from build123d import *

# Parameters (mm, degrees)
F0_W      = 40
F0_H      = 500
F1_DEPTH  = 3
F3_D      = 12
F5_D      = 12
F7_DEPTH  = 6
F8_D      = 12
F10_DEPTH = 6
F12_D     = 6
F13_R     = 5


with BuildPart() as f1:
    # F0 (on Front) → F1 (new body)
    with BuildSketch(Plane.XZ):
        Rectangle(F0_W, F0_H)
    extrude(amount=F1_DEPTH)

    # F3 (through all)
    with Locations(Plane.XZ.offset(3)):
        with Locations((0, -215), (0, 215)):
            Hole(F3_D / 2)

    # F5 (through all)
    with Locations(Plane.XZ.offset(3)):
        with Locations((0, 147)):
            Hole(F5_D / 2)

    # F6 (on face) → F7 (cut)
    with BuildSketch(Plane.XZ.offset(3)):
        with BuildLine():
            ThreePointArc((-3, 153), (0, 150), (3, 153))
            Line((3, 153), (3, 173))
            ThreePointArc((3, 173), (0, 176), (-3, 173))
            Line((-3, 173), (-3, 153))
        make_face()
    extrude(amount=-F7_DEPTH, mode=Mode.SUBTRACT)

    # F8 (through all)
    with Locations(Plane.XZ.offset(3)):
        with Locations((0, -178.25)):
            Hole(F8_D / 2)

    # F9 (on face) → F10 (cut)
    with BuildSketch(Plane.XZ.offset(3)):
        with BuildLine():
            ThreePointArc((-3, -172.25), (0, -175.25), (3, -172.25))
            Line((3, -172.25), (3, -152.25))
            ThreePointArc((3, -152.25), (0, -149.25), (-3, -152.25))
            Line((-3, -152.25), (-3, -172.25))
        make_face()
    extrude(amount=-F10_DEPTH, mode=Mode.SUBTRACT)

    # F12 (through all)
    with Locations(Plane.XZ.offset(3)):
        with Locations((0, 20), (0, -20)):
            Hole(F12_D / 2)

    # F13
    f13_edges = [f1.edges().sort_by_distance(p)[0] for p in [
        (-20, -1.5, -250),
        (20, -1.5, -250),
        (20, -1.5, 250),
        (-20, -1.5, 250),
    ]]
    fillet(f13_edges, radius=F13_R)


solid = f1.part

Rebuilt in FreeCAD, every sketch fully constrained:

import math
import FreeCAD as App
import Part
import Sketcher
from FreeCAD import Vector
Q = App.Units.Quantity


def edges_at(feature, points):
    """Names of the edges that pass closest to the given points."""
    edges = feature.Shape.Edges
    near = lambda p: min(range(len(edges)), key=lambda i: edges[i].distToShape(Part.Vertex(*p))[0])
    return sorted({f"Edge{near(p) + 1}" for p in points})


def add_polygon(sketch, points):
    """Adds a closed chain of lines whose ends are joined by coincident constraints."""
    first, n = sketch.GeometryCount, len(points)
    for a, b in zip(points, points[1:] + points[:1]):
        sketch.addGeometry(Part.LineSegment(App.Vector(*a, 0), App.Vector(*b, 0)), False)
    for i in range(n):
        sketch.addConstraint(Sketcher.Constraint("Coincident", first + i, 2, first + (i + 1) % n, 1))

doc = App.newDocument("Part")
body = doc.addObject("PartDesign::Body", "Body")

sketch1 = body.newObject("Sketcher::SketchObject", "Sketch")
sketch1.AttachmentSupport = (doc.getObject("XZ_Plane"), [""])
sketch1.MapMode = "FlatFace"
add_polygon(sketch1, [(-20, 250), (-20, -250), (20, -250), (20, 250)])
sketch1.addConstraint(Sketcher.Constraint("Vertical", 0))
sketch1.addConstraint(Sketcher.Constraint("Horizontal", 1))
sketch1.addConstraint(Sketcher.Constraint("Vertical", 2))
sketch1.addConstraint(Sketcher.Constraint("Horizontal", 3))
sketch1.addConstraint(Sketcher.Constraint("Symmetric", 0, 2, 2, 2, -1, 1))
sketch1.addConstraint(Sketcher.Constraint("DistanceX", 1, 1, 1, 2, Q("40 mm")))
sketch1.addConstraint(Sketcher.Constraint("DistanceY", 0, 2, 0, 1, Q("500 mm")))
pad1 = body.newObject("PartDesign::Pad", "Pad")
pad1.Profile = sketch1
pad1.Length = 3

sketch2 = body.newObject("Sketcher::SketchObject", "Sketch001")
sketch2.AttachmentSupport = (doc.getObject("XZ_Plane"), [""])
sketch2.MapMode = "FlatFace"
sketch2.AttachmentOffset = App.Placement(Vector(0, 0, 3), App.Rotation())
sketch2.addGeometry(Part.Circle(Vector(0, -215, 0), Vector(0, 0, 1), 6), False)
sketch2.addGeometry(Part.Circle(Vector(0, 215, 0), Vector(0, 0, 1), 6), False)
sketch2.addConstraint(Sketcher.Constraint("Equal", 0, 1))
sketch2.addConstraint(Sketcher.Constraint("Symmetric", 0, 3, 1, 3, -1, 1))
sketch2.addConstraint(Sketcher.Constraint("PointOnObject", 0, 3, -2))
sketch2.addConstraint(Sketcher.Constraint("Diameter", 0, Q("12 mm")))
sketch2.addConstraint(Sketcher.Constraint("DistanceY", 0, 3, -1, 1, Q("215 mm")))
doc.recompute()
hole = body.newObject("PartDesign::Hole", "Hole")
hole.Profile = sketch2
hole.ThreadType = "None"
hole.Diameter = 12
hole.DepthType = "ThroughAll"

sketch3 = body.newObject("Sketcher::SketchObject", "Sketch002")
sketch3.AttachmentSupport = (doc.getObject("XZ_Plane"), [""])
sketch3.MapMode = "FlatFace"
sketch3.AttachmentOffset = App.Placement(Vector(0, 0, 3), App.Rotation())
sketch3.addGeometry(Part.Circle(Vector(0, 147, 0), Vector(0, 0, 1), 6), False)
sketch3.addConstraint(Sketcher.Constraint("PointOnObject", 0, 3, -2))
sketch3.addConstraint(Sketcher.Constraint("Diameter", 0, Q("12 mm")))
sketch3.addConstraint(Sketcher.Constraint("DistanceY", -1, 1, 0, 3, Q("147 mm")))
doc.recompute()
hole2 = body.newObject("PartDesign::Hole", "Hole001")
hole2.Profile = sketch3
hole2.ThreadType = "None"
hole2.Diameter = 12
hole2.DepthType = "ThroughAll"

sketch4 = body.newObject("Sketcher::SketchObject", "Sketch003")
sketch4.AttachmentSupport = (doc.getObject("XZ_Plane"), [""])
sketch4.MapMode = "FlatFace"
sketch4.AttachmentOffset = App.Placement(Vector(0, 0, 3), App.Rotation())
sketch4.addGeometry(Part.ArcOfCircle(Part.Circle(Vector(0, 153, 0), Vector(0, 0, 1), 3), math.radians(180), math.radians(360)), False)
sketch4.addGeometry(Part.LineSegment(Vector(3, 153, 0), Vector(3, 173, 0)), False)
sketch4.addGeometry(Part.ArcOfCircle(Part.Circle(Vector(0, 173, 0), Vector(0, 0, 1), 3), math.radians(0), math.radians(180)), False)
sketch4.addGeometry(Part.LineSegment(Vector(-3, 173, 0), Vector(-3, 153, 0)), False)
sketch4.addConstraint(Sketcher.Constraint("Tangent", 0, 2, 1, 1))
sketch4.addConstraint(Sketcher.Constraint("Tangent", 1, 2, 2, 1))
sketch4.addConstraint(Sketcher.Constraint("Tangent", 2, 2, 3, 1))
sketch4.addConstraint(Sketcher.Constraint("Tangent", 3, 2, 0, 1))
sketch4.addConstraint(Sketcher.Constraint("Vertical", 1))
sketch4.addConstraint(Sketcher.Constraint("Vertical", 3))
sketch4.addConstraint(Sketcher.Constraint("PointOnObject", 0, 3, -2))
sketch4.addConstraint(Sketcher.Constraint("Radius", 0, Q("3 mm")))
sketch4.addConstraint(Sketcher.Constraint("DistanceY", 1, 1, 1, 2, Q("20 mm")))
sketch4.addConstraint(Sketcher.Constraint("DistanceY", -1, 1, 0, 3, Q("153 mm")))
pocket1 = body.newObject("PartDesign::Pocket", "Pocket")
pocket1.Profile = sketch4
pocket1.Length = 6

sketch5 = body.newObject("Sketcher::SketchObject", "Sketch004")
sketch5.AttachmentSupport = (doc.getObject("XZ_Plane"), [""])
sketch5.MapMode = "FlatFace"
sketch5.AttachmentOffset = App.Placement(Vector(0, 0, 3), App.Rotation())
sketch5.addGeometry(Part.Circle(Vector(0, -178, 0), Vector(0, 0, 1), 6), False)
sketch5.addConstraint(Sketcher.Constraint("PointOnObject", 0, 3, -2))
sketch5.addConstraint(Sketcher.Constraint("Diameter", 0, Q("12 mm")))
sketch5.addConstraint(Sketcher.Constraint("DistanceY", 0, 3, -1, 1, Q("178.25 mm")))
doc.recompute()
hole3 = body.newObject("PartDesign::Hole", "Hole002")
hole3.Profile = sketch5
hole3.ThreadType = "None"
hole3.Diameter = 12
hole3.DepthType = "ThroughAll"

sketch6 = body.newObject("Sketcher::SketchObject", "Sketch005")
sketch6.AttachmentSupport = (doc.getObject("XZ_Plane"), [""])
sketch6.MapMode = "FlatFace"
sketch6.AttachmentOffset = App.Placement(Vector(0, 0, 3), App.Rotation())
sketch6.addGeometry(Part.ArcOfCircle(Part.Circle(Vector(0, -172.2, 0), Vector(0, 0, 1), 3), math.radians(180), math.radians(360)), False)
sketch6.addGeometry(Part.LineSegment(Vector(3, -172.2, 0), Vector(3, -152.2, 0)), False)
sketch6.addGeometry(Part.ArcOfCircle(Part.Circle(Vector(0, -152.2, 0), Vector(0, 0, 1), 3), math.radians(0), math.radians(180)), False)
sketch6.addGeometry(Part.LineSegment(Vector(-3, -152.2, 0), Vector(-3, -172.2, 0)), False)
sketch6.addConstraint(Sketcher.Constraint("Tangent", 0, 2, 1, 1))
sketch6.addConstraint(Sketcher.Constraint("Tangent", 1, 2, 2, 1))
sketch6.addConstraint(Sketcher.Constraint("Tangent", 2, 2, 3, 1))
sketch6.addConstraint(Sketcher.Constraint("Tangent", 3, 2, 0, 1))
sketch6.addConstraint(Sketcher.Constraint("Vertical", 1))
sketch6.addConstraint(Sketcher.Constraint("Vertical", 3))
sketch6.addConstraint(Sketcher.Constraint("PointOnObject", 0, 3, -2))
sketch6.addConstraint(Sketcher.Constraint("Radius", 0, Q("3 mm")))
sketch6.addConstraint(Sketcher.Constraint("DistanceY", 1, 1, 1, 2, Q("20 mm")))
sketch6.addConstraint(Sketcher.Constraint("DistanceY", 0, 3, -1, 1, Q("172.25 mm")))
pocket2 = body.newObject("PartDesign::Pocket", "Pocket001")
pocket2.Profile = sketch6
pocket2.Length = 6

sketch7 = body.newObject("Sketcher::SketchObject", "Sketch006")
sketch7.AttachmentSupport = (doc.getObject("XZ_Plane"), [""])
sketch7.MapMode = "FlatFace"
sketch7.AttachmentOffset = App.Placement(Vector(0, 0, 3), App.Rotation())
sketch7.addGeometry(Part.Circle(Vector(0, 20, 0), Vector(0, 0, 1), 3), False)
sketch7.addGeometry(Part.Circle(Vector(0, -20, 0), Vector(0, 0, 1), 3), False)
sketch7.addConstraint(Sketcher.Constraint("Equal", 0, 1))
sketch7.addConstraint(Sketcher.Constraint("Symmetric", 0, 3, 1, 3, -1, 1))
sketch7.addConstraint(Sketcher.Constraint("PointOnObject", 0, 3, -2))
sketch7.addConstraint(Sketcher.Constraint("Diameter", 0, Q("6 mm")))
sketch7.addConstraint(Sketcher.Constraint("DistanceY", -1, 1, 0, 3, Q("20 mm")))
doc.recompute()
hole4 = body.newObject("PartDesign::Hole", "Hole003")
hole4.Profile = sketch7
hole4.ThreadType = "None"
hole4.Diameter = 6
hole4.DepthType = "ThroughAll"
doc.recompute()

fillet = body.newObject("PartDesign::Fillet", "Fillet")
fillet.Base = (hole4, edges_at(hole4, [
    (-20, -1.5, -250),
    (20, -1.5, -250),
    (20, -1.5, 250),
    (-20, -1.5, 250),
]))
fillet.Radius = 5

doc.recompute()
